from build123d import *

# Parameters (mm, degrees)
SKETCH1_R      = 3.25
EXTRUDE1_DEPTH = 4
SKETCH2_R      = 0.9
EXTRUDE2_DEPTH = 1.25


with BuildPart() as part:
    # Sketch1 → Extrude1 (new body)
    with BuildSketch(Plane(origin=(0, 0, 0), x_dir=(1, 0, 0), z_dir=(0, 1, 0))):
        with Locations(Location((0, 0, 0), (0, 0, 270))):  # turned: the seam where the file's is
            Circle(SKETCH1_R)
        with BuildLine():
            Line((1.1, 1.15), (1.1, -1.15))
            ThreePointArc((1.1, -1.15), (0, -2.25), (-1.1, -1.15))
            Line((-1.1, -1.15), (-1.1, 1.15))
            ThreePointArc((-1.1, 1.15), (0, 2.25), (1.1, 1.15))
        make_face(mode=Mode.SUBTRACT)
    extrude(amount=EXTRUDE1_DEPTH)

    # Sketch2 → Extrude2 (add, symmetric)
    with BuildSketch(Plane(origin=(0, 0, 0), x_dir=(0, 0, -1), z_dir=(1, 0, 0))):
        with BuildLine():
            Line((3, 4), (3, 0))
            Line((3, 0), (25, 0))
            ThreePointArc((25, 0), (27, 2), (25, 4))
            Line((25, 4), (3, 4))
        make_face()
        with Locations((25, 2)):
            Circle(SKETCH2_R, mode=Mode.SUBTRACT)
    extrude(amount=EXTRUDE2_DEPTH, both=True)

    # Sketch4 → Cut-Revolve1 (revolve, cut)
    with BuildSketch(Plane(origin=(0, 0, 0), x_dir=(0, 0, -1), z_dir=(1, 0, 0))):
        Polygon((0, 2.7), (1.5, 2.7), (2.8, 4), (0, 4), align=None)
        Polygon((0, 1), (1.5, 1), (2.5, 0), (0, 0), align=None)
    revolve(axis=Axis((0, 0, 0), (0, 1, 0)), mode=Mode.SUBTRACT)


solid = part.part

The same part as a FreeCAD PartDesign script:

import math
import FreeCAD as App
import Part
import Sketcher
from FreeCAD import Vector
Q = App.Units.Quantity


def add_polygon(sketch, points):
    """Adds a closed chain of lines whose ends are joined by coincident constraints."""
    first, n = sketch.GeometryCount, len(points)
    for a, b in zip(points, points[1:] + points[:1]):
        sketch.addGeometry(Part.LineSegment(App.Vector(*a, 0), App.Vector(*b, 0)), False)
    for i in range(n):
        sketch.addConstraint(Sketcher.Constraint("Coincident", first + i, 2, first + (i + 1) % n, 1))

doc = App.newDocument("Part")
body = doc.addObject("PartDesign::Body", "Body")

# Sketch on XZ plane
sketch1 = doc.addObject("Sketcher::SketchObject", "Sketch")
body.addObject(sketch1)
sketch1.AttachmentSupport = (doc.XZ_Plane, [""])
sketch1.MapMode = "FlatFace"
sketch1.addGeometry([
    Part.Circle(Vector(0, 0, 0), Vector(0, 0, 1), 3.25),  # 0
    Part.ArcOfCircle(Part.Circle(Vector(0, -1.15, 0), Vector(0, 0, 1), 1.1), math.radians(180), math.radians(360)),  # 1
    Part.LineSegment(Vector(1.1, -1.15, 0), Vector(1.1, 1.15, 0)),  # 2
    Part.ArcOfCircle(Part.Circle(Vector(0, 1.15, 0), Vector(0, 0, 1), 1.1), math.radians(0), math.radians(180)),  # 3
    Part.LineSegment(Vector(-1.1, 1.15, 0), Vector(-1.1, -1.15, 0)),  # 4
], False)
sketch1.addConstraint([
    Sketcher.Constraint("Tangent", 1, 2, 2, 1),
    Sketcher.Constraint("Tangent", 2, 2, 3, 1),
    Sketcher.Constraint("Tangent", 3, 2, 4, 1),
    Sketcher.Constraint("Tangent", 4, 2, 1, 1),
    Sketcher.Constraint("Vertical", 2),
    Sketcher.Constraint("Vertical", 4),
    Sketcher.Constraint("Coincident", 0, 3, -1, 1),
    Sketcher.Constraint("Symmetric", 1, 3, 3, 3, -1, 1),
    Sketcher.Constraint("Diameter", 0, 6.5),
    Sketcher.Constraint("Radius", 1, 1.1),
    Sketcher.Constraint("DistanceY", 2, 1, 2, 2, 2.3),
])
pad1 = doc.addObject("PartDesign::Pad", "Pad")
body.addObject(pad1)
pad1.Profile = sketch1
pad1.Length = 4
pad1.Reversed = True

# Sketch on YZ plane
sketch2 = doc.addObject("Sketcher::SketchObject", "Sketch001")
body.addObject(sketch2)
sketch2.AttachmentSupport = (doc.YZ_Plane, [""])
sketch2.MapMode = "FlatFace"
sketch2.addGeometry([
    Part.LineSegment(Vector(4, -3, 0), Vector(0, -3, 0)),  # 0
    Part.LineSegment(Vector(0, -3, 0), Vector(0, -25, 0)),  # 1
    Part.ArcOfCircle(Part.Circle(Vector(2, -25, 0), Vector(0, 0, 1), 2), math.radians(180), math.radians(360)),  # 2
    Part.LineSegment(Vector(4, -25, 0), Vector(4, -3, 0)),  # 3
    Part.Circle(Vector(2, -25, 0), Vector(0, 0, 1), 0.9),  # 4
], False)
sketch2.addConstraint([
    Sketcher.Constraint("Coincident", 0, 2, 1, 1),
    Sketcher.Constraint("Tangent", 1, 2, 2, 1),
    Sketcher.Constraint("Tangent", 2, 2, 3, 1),
    Sketcher.Constraint("Coincident", 3, 2, 0, 1),
    Sketcher.Constraint("Horizontal", 0),
    Sketcher.Constraint("Vertical", 1),
    Sketcher.Constraint("Vertical", 3),
    Sketcher.Constraint("Coincident", 4, 3, 2, 3),
    Sketcher.Constraint("PointOnObject", 0, 2, -2),
    Sketcher.Constraint("Radius", 2, 2.0),
    Sketcher.Constraint("Diameter", 4, 1.8),
    Sketcher.Constraint("DistanceY", 1, 2, 1, 1, 22.0),
    Sketcher.Constraint("DistanceY", 2, 3, -1, 1, 25.0),
])
pad2 = doc.addObject("PartDesign::Pad", "Pad001")
body.addObject(pad2)
pad2.Profile = sketch2
pad2.Length = 2.5
pad2.Midplane = True

# Sketch on YZ plane
sketch3 = doc.addObject("Sketcher::SketchObject", "Sketch002")
body.addObject(sketch3)
sketch3.AttachmentSupport = (doc.YZ_Plane, [""])
sketch3.MapMode = "FlatFace"
add_polygon(sketch3, [(2.7, 0), (2.7, -1.5), (4, -2.8), (4, 0)])  # lines 0-3
add_polygon(sketch3, [(1, -1.5), (1, 0), (0, 0), (0, -2.5)])  # lines 4-7
sketch3.addConstraint([
    Sketcher.Constraint("Vertical", 0),
    Sketcher.Constraint("Vertical", 2),
    Sketcher.Constraint("Horizontal", 3),
    Sketcher.Constraint("Vertical", 4),
    Sketcher.Constraint("Horizontal", 5),
    Sketcher.Constraint("Vertical", 6),
    Sketcher.Constraint("Coincident", 5, 2, -1, 1),
    Sketcher.Constraint("PointOnObject", 2, 2, -1),
    Sketcher.Constraint("Perpendicular", 1, 7),
    Sketcher.Constraint("Horizontal", 0, 2, 7, 2),
    Sketcher.Constraint("DistanceX", 5, 2, 5, 1, 1.0),
    Sketcher.Constraint("Angle", 1, Q("-45 deg")),
    Sketcher.Constraint("DistanceX", 3, 2, 3, 1, 1.3),
    Sketcher.Constraint("DistanceY", 0, 2, 0, 1, 1.5),
    Sketcher.Constraint("DistanceX", -1, 1, 1, 2, 4.0),
])
groove = doc.addObject("PartDesign::Groove", "Groove")
body.addObject(groove)
groove.Profile = sketch3
groove.ReferenceAxis = (sketch3, ["H_Axis"])
groove.Angle = 360

doc.recompute()
